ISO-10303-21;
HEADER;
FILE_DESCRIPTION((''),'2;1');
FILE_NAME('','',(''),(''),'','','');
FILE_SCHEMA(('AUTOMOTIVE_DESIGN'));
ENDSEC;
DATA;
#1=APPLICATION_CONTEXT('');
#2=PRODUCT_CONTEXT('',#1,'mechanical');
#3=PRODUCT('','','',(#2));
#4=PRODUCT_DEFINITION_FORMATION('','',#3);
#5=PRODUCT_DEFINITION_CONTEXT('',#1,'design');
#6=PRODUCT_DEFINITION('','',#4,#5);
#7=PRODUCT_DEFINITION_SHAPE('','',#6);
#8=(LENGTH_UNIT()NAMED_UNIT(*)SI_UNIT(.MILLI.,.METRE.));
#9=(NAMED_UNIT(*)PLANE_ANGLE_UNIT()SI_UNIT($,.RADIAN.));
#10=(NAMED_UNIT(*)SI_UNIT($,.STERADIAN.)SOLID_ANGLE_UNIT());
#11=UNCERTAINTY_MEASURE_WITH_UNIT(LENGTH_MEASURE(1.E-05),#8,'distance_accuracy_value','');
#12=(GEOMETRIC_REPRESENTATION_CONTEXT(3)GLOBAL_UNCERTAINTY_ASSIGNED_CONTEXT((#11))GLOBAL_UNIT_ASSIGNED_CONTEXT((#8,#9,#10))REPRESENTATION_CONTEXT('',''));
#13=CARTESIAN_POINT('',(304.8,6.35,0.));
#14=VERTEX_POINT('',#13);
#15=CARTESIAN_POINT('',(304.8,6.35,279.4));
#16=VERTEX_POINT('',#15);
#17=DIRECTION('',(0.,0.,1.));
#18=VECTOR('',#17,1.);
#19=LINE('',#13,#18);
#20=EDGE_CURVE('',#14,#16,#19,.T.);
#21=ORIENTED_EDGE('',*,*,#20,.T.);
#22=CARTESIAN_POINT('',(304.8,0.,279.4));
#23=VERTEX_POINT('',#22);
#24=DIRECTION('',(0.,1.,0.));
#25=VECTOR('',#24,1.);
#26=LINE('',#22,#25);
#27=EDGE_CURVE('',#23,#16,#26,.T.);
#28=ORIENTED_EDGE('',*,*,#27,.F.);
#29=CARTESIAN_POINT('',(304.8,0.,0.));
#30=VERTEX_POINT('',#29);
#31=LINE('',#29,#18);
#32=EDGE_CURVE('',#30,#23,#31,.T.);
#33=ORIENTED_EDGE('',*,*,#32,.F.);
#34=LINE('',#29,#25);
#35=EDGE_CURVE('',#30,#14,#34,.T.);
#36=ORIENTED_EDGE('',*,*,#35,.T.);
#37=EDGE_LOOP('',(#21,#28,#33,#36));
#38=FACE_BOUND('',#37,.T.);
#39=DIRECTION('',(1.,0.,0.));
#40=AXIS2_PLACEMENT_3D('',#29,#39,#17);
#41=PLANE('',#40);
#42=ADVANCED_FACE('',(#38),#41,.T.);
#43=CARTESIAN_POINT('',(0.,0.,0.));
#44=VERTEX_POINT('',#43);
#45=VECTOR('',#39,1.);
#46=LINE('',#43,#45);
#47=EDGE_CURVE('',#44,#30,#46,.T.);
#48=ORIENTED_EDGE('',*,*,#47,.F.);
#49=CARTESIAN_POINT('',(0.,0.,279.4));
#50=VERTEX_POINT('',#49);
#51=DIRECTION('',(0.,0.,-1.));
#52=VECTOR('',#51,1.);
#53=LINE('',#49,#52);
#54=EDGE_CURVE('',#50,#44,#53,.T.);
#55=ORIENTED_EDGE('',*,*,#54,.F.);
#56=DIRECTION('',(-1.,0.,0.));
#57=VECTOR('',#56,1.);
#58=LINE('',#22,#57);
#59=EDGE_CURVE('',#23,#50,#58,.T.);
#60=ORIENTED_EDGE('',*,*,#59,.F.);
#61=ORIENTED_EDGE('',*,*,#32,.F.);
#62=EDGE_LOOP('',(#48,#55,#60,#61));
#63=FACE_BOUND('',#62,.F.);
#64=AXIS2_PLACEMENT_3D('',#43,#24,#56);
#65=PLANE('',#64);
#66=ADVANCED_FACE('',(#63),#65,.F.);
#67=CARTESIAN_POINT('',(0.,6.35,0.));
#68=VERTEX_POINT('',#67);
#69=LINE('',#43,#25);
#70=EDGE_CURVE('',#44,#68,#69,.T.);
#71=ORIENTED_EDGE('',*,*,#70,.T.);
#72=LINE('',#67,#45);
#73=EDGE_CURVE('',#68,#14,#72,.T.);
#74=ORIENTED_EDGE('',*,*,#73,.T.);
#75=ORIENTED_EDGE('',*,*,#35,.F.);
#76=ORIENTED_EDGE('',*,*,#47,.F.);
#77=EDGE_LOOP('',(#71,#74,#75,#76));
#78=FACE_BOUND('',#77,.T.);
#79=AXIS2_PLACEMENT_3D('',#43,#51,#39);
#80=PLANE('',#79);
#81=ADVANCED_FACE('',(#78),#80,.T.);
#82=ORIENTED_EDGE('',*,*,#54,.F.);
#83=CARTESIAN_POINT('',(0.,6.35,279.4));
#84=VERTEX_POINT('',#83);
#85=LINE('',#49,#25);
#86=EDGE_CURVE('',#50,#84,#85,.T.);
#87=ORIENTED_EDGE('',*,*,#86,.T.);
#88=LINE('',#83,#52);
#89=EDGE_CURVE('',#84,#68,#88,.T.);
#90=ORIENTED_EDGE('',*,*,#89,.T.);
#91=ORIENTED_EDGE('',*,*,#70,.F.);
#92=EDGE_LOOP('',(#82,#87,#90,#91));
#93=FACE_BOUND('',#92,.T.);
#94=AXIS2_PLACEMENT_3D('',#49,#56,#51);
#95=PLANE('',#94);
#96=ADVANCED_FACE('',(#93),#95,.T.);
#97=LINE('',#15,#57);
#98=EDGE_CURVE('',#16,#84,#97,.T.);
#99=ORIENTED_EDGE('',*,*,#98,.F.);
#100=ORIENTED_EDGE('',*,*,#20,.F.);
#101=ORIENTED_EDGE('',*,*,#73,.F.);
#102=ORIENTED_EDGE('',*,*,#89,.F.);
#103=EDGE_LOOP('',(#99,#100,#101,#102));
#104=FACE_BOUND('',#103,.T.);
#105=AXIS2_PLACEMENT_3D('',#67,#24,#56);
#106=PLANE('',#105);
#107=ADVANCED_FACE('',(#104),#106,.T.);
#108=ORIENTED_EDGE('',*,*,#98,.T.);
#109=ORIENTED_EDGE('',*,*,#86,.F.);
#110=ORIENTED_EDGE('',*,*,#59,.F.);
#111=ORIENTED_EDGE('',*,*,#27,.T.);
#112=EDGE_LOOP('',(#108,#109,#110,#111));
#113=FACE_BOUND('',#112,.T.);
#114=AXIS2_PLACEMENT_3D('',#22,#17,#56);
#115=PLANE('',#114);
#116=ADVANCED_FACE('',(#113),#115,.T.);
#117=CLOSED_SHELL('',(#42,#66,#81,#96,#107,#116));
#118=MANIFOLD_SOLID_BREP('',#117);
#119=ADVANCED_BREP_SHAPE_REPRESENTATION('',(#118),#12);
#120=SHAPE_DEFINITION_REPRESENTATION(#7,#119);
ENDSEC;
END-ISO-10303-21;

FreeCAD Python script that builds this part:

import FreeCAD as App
import Part
import Sketcher
Q = App.Units.Quantity


def add_polygon(sketch, points):
    """Adds a closed chain of lines whose ends are joined by coincident constraints."""
    first, n = sketch.GeometryCount, len(points)
    for a, b in zip(points, points[1:] + points[:1]):
        sketch.addGeometry(Part.LineSegment(App.Vector(*a, 0), App.Vector(*b, 0)), False)
    for i in range(n):
        sketch.addConstraint(Sketcher.Constraint("Coincident", first + i, 2, first + (i + 1) % n, 1))

doc = App.newDocument("Part")
body = doc.addObject("PartDesign::Body", "Body")

sketch1 = body.newObject("Sketcher::SketchObject", "Sketch")
sketch1.AttachmentSupport = (doc.getObject("XZ_Plane"), [""])
sketch1.MapMode = "FlatFace"
add_polygon(sketch1, [(305, 0), (0, 0), (0, 279), (305, 279)])
sketch1.addConstraint([
    Sketcher.Constraint("Horizontal", 0),
    Sketcher.Constraint("Vertical", 1),
    Sketcher.Constraint("Horizontal", 2),
    Sketcher.Constraint("Vertical", 3),
    Sketcher.Constraint("Coincident", 0, 2, -1, 1),
    Sketcher.Constraint("DistanceX", 0, 2, 0, 1, Q("12 in")),
    Sketcher.Constraint("DistanceY", 1, 1, 1, 2, Q("11 in")),
])
pad1 = body.newObject("PartDesign::Pad", "Pad")
pad1.Profile = sketch1
pad1.Length = Q("0.25 in")
pad1.Reversed = True

doc.recompute()
